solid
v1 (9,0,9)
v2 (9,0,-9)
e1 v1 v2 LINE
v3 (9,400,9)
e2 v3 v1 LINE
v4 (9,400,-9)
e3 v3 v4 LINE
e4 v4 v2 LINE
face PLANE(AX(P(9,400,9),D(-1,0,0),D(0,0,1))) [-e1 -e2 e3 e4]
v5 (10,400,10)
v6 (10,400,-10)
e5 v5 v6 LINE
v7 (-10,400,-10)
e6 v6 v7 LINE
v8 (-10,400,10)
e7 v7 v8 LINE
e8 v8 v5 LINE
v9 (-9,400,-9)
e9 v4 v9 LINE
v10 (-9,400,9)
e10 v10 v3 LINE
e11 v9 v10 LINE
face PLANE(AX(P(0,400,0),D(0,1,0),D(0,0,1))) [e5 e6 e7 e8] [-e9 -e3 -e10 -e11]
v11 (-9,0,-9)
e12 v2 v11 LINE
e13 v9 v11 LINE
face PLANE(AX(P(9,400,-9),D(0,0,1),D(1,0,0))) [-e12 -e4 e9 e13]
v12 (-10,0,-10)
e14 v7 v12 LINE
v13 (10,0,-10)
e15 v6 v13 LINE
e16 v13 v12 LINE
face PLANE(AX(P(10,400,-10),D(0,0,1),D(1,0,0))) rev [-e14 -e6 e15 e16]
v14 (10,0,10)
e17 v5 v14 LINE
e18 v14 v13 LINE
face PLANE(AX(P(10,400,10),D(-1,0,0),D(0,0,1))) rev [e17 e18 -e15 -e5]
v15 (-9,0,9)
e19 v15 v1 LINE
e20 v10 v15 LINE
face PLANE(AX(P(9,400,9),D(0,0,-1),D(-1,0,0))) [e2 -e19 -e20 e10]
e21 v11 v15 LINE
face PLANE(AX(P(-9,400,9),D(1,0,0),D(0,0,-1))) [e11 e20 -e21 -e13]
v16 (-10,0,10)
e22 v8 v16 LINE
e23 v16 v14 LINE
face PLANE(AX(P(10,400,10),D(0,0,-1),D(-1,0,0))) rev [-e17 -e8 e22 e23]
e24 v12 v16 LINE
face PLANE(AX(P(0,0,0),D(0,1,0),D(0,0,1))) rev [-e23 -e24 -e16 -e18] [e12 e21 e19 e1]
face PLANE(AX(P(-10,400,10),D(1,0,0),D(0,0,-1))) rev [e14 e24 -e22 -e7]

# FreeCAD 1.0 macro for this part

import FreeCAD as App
import Part
import Sketcher


def add_polygon(sketch, points):
    """Adds a closed chain of lines whose ends are joined by coincident constraints."""
    first, n = sketch.GeometryCount, len(points)
    for a, b in zip(points, points[1:] + points[:1]):
        sketch.addGeometry(Part.LineSegment(App.Vector(*a, 0), App.Vector(*b, 0)), False)
    for i in range(n):
        sketch.addConstraint(Sketcher.Constraint("Coincident", first + i, 2, first + (i + 1) % n, 1))

doc = App.newDocument("Part")
body = doc.addObject("PartDesign::Body", "Body")

# Sketch on XZ plane
sketch1 = body.newObject("Sketcher::SketchObject", "Sketch")
sketch1.AttachmentSupport = (doc.getObject("XZ_Plane"), [""])
sketch1.MapMode = "FlatFace"
add_polygon(sketch1, [(-10, -10), (-10, 10), (10, 10), (10, -10)])  # lines 0-3
add_polygon(sketch1, [(9, 9), (-9, 9), (-9, -9), (9, -9)])  # lines 4-7
sketch1.addConstraint([
    Sketcher.Constraint("Vertical", 0),
    Sketcher.Constraint("Horizontal", 1),
    Sketcher.Constraint("Vertical", 2),
    Sketcher.Constraint("Horizontal", 3),
    Sketcher.Constraint("Horizontal", 4),
    Sketcher.Constraint("Vertical", 5),
    Sketcher.Constraint("Horizontal", 6),
    Sketcher.Constraint("Vertical", 7),
    Sketcher.Constraint("Symmetric", 0, 2, 2, 2, -1, 1),
    Sketcher.Constraint("Symmetric", 4, 2, 6, 2, -1, 1),
    Sketcher.Constraint("Equal", 3, 0),
    Sketcher.Constraint("Equal", 6, 5),
    Sketcher.Constraint("DistanceX", 1, 1, 1, 2, 20.0),
    Sketcher.Constraint("DistanceX", 4, 2, 4, 1, 18.0),
])
pad1 = body.newObject("PartDesign::Pad", "Pad")
pad1.Profile = sketch1
pad1.Length = 400
pad1.Reversed = True

doc.recompute()
